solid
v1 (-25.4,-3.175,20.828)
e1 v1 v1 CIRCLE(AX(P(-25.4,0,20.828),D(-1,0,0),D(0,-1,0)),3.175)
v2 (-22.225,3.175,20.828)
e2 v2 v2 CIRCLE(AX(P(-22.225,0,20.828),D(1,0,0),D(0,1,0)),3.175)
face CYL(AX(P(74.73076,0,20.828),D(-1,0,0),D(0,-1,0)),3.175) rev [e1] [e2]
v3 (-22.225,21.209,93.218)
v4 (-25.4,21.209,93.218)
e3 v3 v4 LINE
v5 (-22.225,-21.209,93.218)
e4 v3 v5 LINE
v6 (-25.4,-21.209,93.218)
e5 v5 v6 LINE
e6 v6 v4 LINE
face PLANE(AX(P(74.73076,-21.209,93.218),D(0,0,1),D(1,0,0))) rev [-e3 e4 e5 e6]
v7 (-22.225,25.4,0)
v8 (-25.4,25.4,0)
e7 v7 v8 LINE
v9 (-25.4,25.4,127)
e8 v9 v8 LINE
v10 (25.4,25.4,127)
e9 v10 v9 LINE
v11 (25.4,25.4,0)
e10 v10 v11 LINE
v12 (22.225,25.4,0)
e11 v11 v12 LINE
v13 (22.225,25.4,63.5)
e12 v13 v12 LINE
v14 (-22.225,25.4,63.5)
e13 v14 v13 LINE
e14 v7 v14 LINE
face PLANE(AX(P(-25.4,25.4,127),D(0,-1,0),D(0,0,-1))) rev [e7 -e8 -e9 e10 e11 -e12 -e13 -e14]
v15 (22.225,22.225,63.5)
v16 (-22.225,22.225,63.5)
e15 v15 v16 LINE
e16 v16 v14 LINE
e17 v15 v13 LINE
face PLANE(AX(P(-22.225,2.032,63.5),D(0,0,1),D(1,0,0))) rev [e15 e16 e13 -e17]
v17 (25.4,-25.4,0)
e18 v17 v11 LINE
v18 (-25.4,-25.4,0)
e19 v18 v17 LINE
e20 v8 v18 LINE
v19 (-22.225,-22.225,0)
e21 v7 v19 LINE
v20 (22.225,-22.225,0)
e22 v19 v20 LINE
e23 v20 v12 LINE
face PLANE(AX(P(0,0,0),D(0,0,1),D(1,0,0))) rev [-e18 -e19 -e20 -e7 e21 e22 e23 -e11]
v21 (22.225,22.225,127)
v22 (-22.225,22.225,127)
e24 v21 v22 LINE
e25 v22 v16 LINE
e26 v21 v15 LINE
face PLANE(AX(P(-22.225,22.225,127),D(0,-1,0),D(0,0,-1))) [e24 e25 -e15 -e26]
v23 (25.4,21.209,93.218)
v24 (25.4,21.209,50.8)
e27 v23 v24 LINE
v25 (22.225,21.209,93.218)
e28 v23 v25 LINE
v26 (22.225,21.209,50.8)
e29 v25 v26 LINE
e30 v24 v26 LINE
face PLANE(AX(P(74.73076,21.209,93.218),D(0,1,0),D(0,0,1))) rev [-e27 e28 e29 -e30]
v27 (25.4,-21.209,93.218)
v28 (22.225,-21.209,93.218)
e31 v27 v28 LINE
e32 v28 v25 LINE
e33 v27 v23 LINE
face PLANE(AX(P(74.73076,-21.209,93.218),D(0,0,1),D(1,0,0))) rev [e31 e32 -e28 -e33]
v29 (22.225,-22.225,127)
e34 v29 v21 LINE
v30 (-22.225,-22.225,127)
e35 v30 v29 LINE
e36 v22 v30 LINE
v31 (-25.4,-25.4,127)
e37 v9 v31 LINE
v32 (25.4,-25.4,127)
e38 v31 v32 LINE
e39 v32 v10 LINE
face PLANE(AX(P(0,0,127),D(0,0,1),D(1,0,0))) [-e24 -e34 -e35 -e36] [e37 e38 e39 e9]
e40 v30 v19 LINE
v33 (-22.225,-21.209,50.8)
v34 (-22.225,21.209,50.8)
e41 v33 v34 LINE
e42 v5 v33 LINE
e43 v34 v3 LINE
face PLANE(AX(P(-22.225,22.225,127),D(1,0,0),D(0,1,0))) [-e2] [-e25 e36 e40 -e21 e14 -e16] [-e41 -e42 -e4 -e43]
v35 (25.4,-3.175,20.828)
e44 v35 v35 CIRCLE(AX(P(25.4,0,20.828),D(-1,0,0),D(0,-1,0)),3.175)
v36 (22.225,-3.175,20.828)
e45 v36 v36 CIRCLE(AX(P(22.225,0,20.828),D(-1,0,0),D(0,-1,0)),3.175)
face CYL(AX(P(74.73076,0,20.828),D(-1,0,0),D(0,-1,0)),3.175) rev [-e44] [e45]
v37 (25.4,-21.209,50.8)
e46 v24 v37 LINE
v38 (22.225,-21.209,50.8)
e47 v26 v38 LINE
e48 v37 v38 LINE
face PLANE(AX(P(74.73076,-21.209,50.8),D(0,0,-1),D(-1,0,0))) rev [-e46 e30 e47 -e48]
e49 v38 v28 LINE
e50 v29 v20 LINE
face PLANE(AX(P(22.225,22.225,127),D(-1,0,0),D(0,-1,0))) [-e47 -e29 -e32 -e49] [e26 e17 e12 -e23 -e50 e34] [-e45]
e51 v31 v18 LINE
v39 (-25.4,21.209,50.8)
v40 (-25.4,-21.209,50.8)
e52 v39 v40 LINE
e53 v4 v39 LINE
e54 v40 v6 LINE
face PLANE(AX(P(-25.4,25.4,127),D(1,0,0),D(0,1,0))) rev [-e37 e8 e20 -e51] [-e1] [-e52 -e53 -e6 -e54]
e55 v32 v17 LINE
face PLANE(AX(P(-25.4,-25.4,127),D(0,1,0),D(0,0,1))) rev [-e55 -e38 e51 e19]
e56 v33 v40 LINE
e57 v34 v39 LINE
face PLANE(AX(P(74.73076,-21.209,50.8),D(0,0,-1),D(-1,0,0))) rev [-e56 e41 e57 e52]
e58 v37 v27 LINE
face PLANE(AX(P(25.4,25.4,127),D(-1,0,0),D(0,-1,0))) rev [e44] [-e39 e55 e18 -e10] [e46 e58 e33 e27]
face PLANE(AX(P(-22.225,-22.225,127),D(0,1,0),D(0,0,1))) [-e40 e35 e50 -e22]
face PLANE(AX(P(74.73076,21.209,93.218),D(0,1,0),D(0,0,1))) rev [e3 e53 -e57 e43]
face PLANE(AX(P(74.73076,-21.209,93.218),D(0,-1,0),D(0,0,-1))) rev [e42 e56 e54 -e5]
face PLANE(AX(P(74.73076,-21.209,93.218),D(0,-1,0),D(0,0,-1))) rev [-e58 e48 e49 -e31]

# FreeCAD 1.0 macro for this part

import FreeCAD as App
import Part
import Sketcher
from FreeCAD import Vector
Q = App.Units.Quantity

doc = App.newDocument("Part")
body = doc.addObject("PartDesign::Body", "Body")

sketch1 = doc.addObject("Sketcher::SketchObject", "Sketch")
body.addObject(sketch1)
sketch1.AttachmentSupport = (doc.XY_Plane, [""])
sketch1.MapMode = "FlatFace"
sketch1.addGeometry([
    Part.LineSegment(Vector(-25, 25, 0), Vector(-25, -25, 0)),
    Part.LineSegment(Vector(-25, -25, 0), Vector(25, -25, 0)),
    Part.LineSegment(Vector(25, -25, 0), Vector(25, 25, 0)),
    Part.LineSegment(Vector(25, 25, 0), Vector(-25, 25, 0)),
    Part.LineSegment(Vector(22, -22, 0), Vector(-22, -22, 0)),
    Part.LineSegment(Vector(-22, -22, 0), Vector(-22, 22, 0)),
    Part.LineSegment(Vector(-22, 22, 0), Vector(22, 22, 0)),
    Part.LineSegment(Vector(22, 22, 0), Vector(22, -22, 0)),
], False)
sketch1.addConstraint([
    Sketcher.Constraint("Coincident", 0, 2, 1, 1),
    Sketcher.Constraint("Coincident", 1, 2, 2, 1),
    Sketcher.Constraint("Coincident", 2, 2, 3, 1),
    Sketcher.Constraint("Coincident", 3, 2, 0, 1),
    Sketcher.Constraint("Coincident", 4, 2, 5, 1),
    Sketcher.Constraint("Coincident", 5, 2, 6, 1),
    Sketcher.Constraint("Coincident", 6, 2, 7, 1),
    Sketcher.Constraint("Coincident", 7, 2, 4, 1),
    Sketcher.Constraint("Vertical", 0),
    Sketcher.Constraint("Horizontal", 1),
    Sketcher.Constraint("Vertical", 2),
    Sketcher.Constraint("Horizontal", 3),
    Sketcher.Constraint("Horizontal", 4),
    Sketcher.Constraint("Vertical", 5),
    Sketcher.Constraint("Horizontal", 6),
    Sketcher.Constraint("Vertical", 7),
    Sketcher.Constraint("Symmetric", 0, 2, 2, 2, -1, 1),
    Sketcher.Constraint("Symmetric", 4, 2, 6, 2, -1, 1),
    Sketcher.Constraint("Equal", 3, 0),
    Sketcher.Constraint("Equal", 6, 5),
    Sketcher.Constraint("DistanceX", 1, 1, 1, 2, Q("2 in")),
    Sketcher.Constraint("DistanceX", 4, 2, 4, 1, Q("1.75 in")),
])
pad1 = doc.addObject("PartDesign::Pad", "Pad")
body.addObject(pad1)
pad1.Profile = sketch1
pad1.Length = Q("5 in")

sketch2 = doc.addObject("Sketcher::SketchObject", "Sketch001")
body.addObject(sketch2)
sketch2.AttachmentSupport = (doc.XZ_Plane, [""])
sketch2.MapMode = "FlatFace"
sketch2.AttachmentOffset = App.Placement(Vector(0, 0, -1 * 25.4), App.Rotation())
sketch2.addGeometry([
    Part.LineSegment(Vector(-22, 0, 0), Vector(-22, 64, 0)),
    Part.LineSegment(Vector(-22, 64, 0), Vector(22, 64, 0)),
    Part.LineSegment(Vector(22, 64, 0), Vector(22, 0, 0)),
    Part.LineSegment(Vector(22, 0, 0), Vector(-22, 0, 0)),
], False)
sketch2.addConstraint([
    Sketcher.Constraint("Coincident", 0, 2, 1, 1),
    Sketcher.Constraint("Coincident", 1, 2, 2, 1),
    Sketcher.Constraint("Coincident", 2, 2, 3, 1),
    Sketcher.Constraint("Coincident", 3, 2, 0, 1),
    Sketcher.Constraint("Vertical", 0),
    Sketcher.Constraint("Horizontal", 1),
    Sketcher.Constraint("Vertical", 2),
    Sketcher.Constraint("Horizontal", 3),
    Sketcher.Constraint("Symmetric", 2, 2, 3, 2, -1, 1),
    Sketcher.Constraint("DistanceY", 0, 1, 0, 2, Q("2.5 in")),
    Sketcher.Constraint("DistanceX", 1, 1, 1, 2, Q("1.75 in")),
])
pocket1 = doc.addObject("PartDesign::Pocket", "Pocket")
body.addObject(pocket1)
pocket1.Profile = sketch2
pocket1.Length = Q("0.92 in")
pocket1.Reversed = True

sketch3 = doc.addObject("Sketcher::SketchObject", "Sketch002")
body.addObject(sketch3)
sketch3.AttachmentSupport = (doc.YZ_Plane, [""])
sketch3.MapMode = "FlatFace"
sketch3.AttachmentOffset = App.Placement(Vector(0, 0, -1 * 25.4), App.Rotation())
sketch3.addGeometry([
    Part.Circle(Vector(0, 20.8, 0), Vector(0, 0, 1), 3.2),
    Part.LineSegment(Vector(21.2, 50.8, 0), Vector(-21.2, 50.8, 0)),
    Part.LineSegment(Vector(-21.2, 50.8, 0), Vector(-21.2, 93.2, 0)),
    Part.LineSegment(Vector(-21.2, 93.2, 0), Vector(21.2, 93.2, 0)),
    Part.LineSegment(Vector(21.2, 93.2, 0), Vector(21.2, 50.8, 0)),
], False)
sketch3.addConstraint([
    Sketcher.Constraint("Coincident", 1, 2, 2, 1),
    Sketcher.Constraint("Coincident", 2, 2, 3, 1),
    Sketcher.Constraint("Coincident", 3, 2, 4, 1),
    Sketcher.Constraint("Coincident", 4, 2, 1, 1),
    Sketcher.Constraint("Horizontal", 1),
    Sketcher.Constraint("Vertical", 2),
    Sketcher.Constraint("Horizontal", 3),
    Sketcher.Constraint("Vertical", 4),
    Sketcher.Constraint("PointOnObject", 0, 3, -2),
    Sketcher.Constraint("Equal", 3, 2),
    Sketcher.Constraint("Diameter", 0, Q("0.25 in")),
    Sketcher.Constraint("DistanceY", -1, 1, 1, 2, Q("2 in")),
    Sketcher.Constraint("DistanceX", 1, 2, 1, 1, Q("1.67 in")),
    Sketcher.Constraint("DistanceY", -1, 1, 0, 3, Q("0.82 in")),
    Sketcher.Constraint("DistanceX", 1, 2, -1, 1, Q("0.835 in")),
])
pocket2 = doc.addObject("PartDesign::Pocket", "Pocket001")
body.addObject(pocket2)
pocket2.Profile = sketch3
pocket2.Length = 100.13076
pocket2.Reversed = True

doc.recompute()
